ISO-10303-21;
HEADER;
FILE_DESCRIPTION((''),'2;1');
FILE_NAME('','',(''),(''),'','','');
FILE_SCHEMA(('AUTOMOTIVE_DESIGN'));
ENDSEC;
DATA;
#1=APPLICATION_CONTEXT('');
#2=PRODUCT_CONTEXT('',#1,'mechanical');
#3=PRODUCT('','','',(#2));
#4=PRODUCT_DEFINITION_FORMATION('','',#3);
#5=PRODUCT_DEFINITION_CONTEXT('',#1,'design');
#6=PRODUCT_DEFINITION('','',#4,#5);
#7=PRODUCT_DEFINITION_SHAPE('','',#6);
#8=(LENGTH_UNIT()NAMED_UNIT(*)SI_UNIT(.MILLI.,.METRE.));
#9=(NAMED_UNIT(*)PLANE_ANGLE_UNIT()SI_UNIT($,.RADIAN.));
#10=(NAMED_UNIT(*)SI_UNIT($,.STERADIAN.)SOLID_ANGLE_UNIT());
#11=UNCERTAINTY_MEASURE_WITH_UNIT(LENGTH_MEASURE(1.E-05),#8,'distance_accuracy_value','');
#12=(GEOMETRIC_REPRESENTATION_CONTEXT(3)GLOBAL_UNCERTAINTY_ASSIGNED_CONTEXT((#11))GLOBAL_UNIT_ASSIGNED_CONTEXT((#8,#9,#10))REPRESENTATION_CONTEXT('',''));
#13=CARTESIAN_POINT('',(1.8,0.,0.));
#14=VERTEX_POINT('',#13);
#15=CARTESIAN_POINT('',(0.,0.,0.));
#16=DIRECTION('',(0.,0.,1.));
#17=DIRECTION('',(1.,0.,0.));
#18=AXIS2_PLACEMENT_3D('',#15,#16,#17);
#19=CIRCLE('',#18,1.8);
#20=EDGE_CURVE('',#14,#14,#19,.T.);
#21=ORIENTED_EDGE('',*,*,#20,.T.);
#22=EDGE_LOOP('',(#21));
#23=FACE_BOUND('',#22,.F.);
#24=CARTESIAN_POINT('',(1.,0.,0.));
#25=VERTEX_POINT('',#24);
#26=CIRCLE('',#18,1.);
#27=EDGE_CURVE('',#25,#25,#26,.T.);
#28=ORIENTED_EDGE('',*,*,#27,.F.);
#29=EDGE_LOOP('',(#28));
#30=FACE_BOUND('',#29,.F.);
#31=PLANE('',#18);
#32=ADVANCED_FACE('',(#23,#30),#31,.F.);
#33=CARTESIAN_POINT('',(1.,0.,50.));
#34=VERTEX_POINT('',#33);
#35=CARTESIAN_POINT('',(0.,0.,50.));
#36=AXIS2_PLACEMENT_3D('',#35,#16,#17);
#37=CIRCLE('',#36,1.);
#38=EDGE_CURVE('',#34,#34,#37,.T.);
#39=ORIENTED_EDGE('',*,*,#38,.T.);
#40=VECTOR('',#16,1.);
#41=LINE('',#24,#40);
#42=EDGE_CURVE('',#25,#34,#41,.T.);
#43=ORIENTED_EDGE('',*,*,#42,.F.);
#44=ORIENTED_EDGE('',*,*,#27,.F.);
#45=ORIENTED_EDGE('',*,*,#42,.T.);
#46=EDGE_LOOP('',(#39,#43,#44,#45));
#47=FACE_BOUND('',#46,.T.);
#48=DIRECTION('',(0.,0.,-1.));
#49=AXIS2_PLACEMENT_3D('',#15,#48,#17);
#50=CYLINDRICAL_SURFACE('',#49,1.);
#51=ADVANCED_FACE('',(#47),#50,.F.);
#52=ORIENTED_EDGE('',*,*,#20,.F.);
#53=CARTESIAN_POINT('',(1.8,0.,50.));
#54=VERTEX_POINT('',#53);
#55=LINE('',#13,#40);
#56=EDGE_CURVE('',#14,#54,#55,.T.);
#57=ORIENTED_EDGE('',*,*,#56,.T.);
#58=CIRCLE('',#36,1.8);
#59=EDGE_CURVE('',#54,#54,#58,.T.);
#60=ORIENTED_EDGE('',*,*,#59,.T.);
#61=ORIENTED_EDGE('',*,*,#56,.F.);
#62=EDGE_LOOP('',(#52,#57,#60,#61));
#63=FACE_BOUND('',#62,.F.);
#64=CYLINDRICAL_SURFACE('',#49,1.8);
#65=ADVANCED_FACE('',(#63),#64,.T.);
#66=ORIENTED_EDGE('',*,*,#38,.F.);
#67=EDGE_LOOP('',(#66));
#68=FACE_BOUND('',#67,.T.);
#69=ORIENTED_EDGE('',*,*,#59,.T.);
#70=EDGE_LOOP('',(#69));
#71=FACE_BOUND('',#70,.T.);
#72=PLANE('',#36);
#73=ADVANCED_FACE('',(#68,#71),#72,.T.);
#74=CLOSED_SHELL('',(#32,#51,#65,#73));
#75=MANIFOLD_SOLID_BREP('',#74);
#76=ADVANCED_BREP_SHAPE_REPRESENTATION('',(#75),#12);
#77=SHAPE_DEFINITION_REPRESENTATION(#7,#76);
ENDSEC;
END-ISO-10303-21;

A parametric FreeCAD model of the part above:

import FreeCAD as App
import Part
import Sketcher

V = App.Vector
Q = App.Units.Quantity

doc = App.newDocument("Part")
body = doc.addObject("PartDesign::Body", "Body")

# Sketch on XY plane
sketch1 = body.newObject("Sketcher::SketchObject", "Sketch")
sketch1.AttachmentSupport = (doc.getObject("XY_Plane"), [""])
sketch1.MapMode = "FlatFace"
sketch1.addGeometry(Part.Circle(V(0, 0, 0), V(0, 0, 1), 1.8), False)
sketch1.addGeometry(Part.Circle(V(0, 0, 0), V(0, 0, 1), 1), False)
sketch1.addConstraint(Sketcher.Constraint("Coincident", 0, 3, -1, 1))
sketch1.addConstraint(Sketcher.Constraint("Coincident", 1, 3, -1, 1))
sketch1.addConstraint(Sketcher.Constraint("Diameter", 1, Q("2 mm")))
sketch1.addConstraint(Sketcher.Constraint("Diameter", 0, Q("3.6 mm")))
pad1 = body.newObject("PartDesign::Pad", "Pad")
pad1.Profile = sketch1
pad1.Length = 50

doc.recompute()
